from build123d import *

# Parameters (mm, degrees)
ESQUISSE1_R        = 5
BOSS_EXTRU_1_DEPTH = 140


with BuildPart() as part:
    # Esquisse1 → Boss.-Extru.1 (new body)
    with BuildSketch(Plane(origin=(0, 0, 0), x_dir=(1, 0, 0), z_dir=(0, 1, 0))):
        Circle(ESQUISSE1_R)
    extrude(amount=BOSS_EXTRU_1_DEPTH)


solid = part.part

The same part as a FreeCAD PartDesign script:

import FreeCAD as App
import Part
import Sketcher

V = App.Vector
Q = App.Units.Quantity

doc = App.newDocument("Part")
params = doc.addObject("Spreadsheet::Sheet", "Params")
for row, (alias, value) in enumerate([
    ("sketch1_diameter", "10 mm"),
    ("pad1_length", "140 mm"),
], start=1):
    params.set(f"A{row}", alias)
    params.set(f"B{row}", "=" + value)
    params.setAlias(f"B{row}", alias)

body = doc.addObject("PartDesign::Body", "Body")

sketch1 = body.newObject("Sketcher::SketchObject", "Sketch")
sketch1.AttachmentSupport = (doc.getObject("XZ_Plane"), [""])
sketch1.MapMode = "FlatFace"
sketch1.addGeometry(Part.Circle(V(0, 0, 0), V(0, 0, 1), 5), False)
sketch1.addConstraint([
    Sketcher.Constraint("Coincident", 0, 3, -1, 1),
    Sketcher.Constraint("Diameter", 0, Q("10 mm")),
])
sketch1.setExpression("Constraints[1]", "Params.sketch1_diameter")
pad1 = body.newObject("PartDesign::Pad", "Pad")
pad1.Profile = sketch1
pad1.setExpression("Length", "Params.pad1_length")
pad1.Reversed = True

doc.recompute()
